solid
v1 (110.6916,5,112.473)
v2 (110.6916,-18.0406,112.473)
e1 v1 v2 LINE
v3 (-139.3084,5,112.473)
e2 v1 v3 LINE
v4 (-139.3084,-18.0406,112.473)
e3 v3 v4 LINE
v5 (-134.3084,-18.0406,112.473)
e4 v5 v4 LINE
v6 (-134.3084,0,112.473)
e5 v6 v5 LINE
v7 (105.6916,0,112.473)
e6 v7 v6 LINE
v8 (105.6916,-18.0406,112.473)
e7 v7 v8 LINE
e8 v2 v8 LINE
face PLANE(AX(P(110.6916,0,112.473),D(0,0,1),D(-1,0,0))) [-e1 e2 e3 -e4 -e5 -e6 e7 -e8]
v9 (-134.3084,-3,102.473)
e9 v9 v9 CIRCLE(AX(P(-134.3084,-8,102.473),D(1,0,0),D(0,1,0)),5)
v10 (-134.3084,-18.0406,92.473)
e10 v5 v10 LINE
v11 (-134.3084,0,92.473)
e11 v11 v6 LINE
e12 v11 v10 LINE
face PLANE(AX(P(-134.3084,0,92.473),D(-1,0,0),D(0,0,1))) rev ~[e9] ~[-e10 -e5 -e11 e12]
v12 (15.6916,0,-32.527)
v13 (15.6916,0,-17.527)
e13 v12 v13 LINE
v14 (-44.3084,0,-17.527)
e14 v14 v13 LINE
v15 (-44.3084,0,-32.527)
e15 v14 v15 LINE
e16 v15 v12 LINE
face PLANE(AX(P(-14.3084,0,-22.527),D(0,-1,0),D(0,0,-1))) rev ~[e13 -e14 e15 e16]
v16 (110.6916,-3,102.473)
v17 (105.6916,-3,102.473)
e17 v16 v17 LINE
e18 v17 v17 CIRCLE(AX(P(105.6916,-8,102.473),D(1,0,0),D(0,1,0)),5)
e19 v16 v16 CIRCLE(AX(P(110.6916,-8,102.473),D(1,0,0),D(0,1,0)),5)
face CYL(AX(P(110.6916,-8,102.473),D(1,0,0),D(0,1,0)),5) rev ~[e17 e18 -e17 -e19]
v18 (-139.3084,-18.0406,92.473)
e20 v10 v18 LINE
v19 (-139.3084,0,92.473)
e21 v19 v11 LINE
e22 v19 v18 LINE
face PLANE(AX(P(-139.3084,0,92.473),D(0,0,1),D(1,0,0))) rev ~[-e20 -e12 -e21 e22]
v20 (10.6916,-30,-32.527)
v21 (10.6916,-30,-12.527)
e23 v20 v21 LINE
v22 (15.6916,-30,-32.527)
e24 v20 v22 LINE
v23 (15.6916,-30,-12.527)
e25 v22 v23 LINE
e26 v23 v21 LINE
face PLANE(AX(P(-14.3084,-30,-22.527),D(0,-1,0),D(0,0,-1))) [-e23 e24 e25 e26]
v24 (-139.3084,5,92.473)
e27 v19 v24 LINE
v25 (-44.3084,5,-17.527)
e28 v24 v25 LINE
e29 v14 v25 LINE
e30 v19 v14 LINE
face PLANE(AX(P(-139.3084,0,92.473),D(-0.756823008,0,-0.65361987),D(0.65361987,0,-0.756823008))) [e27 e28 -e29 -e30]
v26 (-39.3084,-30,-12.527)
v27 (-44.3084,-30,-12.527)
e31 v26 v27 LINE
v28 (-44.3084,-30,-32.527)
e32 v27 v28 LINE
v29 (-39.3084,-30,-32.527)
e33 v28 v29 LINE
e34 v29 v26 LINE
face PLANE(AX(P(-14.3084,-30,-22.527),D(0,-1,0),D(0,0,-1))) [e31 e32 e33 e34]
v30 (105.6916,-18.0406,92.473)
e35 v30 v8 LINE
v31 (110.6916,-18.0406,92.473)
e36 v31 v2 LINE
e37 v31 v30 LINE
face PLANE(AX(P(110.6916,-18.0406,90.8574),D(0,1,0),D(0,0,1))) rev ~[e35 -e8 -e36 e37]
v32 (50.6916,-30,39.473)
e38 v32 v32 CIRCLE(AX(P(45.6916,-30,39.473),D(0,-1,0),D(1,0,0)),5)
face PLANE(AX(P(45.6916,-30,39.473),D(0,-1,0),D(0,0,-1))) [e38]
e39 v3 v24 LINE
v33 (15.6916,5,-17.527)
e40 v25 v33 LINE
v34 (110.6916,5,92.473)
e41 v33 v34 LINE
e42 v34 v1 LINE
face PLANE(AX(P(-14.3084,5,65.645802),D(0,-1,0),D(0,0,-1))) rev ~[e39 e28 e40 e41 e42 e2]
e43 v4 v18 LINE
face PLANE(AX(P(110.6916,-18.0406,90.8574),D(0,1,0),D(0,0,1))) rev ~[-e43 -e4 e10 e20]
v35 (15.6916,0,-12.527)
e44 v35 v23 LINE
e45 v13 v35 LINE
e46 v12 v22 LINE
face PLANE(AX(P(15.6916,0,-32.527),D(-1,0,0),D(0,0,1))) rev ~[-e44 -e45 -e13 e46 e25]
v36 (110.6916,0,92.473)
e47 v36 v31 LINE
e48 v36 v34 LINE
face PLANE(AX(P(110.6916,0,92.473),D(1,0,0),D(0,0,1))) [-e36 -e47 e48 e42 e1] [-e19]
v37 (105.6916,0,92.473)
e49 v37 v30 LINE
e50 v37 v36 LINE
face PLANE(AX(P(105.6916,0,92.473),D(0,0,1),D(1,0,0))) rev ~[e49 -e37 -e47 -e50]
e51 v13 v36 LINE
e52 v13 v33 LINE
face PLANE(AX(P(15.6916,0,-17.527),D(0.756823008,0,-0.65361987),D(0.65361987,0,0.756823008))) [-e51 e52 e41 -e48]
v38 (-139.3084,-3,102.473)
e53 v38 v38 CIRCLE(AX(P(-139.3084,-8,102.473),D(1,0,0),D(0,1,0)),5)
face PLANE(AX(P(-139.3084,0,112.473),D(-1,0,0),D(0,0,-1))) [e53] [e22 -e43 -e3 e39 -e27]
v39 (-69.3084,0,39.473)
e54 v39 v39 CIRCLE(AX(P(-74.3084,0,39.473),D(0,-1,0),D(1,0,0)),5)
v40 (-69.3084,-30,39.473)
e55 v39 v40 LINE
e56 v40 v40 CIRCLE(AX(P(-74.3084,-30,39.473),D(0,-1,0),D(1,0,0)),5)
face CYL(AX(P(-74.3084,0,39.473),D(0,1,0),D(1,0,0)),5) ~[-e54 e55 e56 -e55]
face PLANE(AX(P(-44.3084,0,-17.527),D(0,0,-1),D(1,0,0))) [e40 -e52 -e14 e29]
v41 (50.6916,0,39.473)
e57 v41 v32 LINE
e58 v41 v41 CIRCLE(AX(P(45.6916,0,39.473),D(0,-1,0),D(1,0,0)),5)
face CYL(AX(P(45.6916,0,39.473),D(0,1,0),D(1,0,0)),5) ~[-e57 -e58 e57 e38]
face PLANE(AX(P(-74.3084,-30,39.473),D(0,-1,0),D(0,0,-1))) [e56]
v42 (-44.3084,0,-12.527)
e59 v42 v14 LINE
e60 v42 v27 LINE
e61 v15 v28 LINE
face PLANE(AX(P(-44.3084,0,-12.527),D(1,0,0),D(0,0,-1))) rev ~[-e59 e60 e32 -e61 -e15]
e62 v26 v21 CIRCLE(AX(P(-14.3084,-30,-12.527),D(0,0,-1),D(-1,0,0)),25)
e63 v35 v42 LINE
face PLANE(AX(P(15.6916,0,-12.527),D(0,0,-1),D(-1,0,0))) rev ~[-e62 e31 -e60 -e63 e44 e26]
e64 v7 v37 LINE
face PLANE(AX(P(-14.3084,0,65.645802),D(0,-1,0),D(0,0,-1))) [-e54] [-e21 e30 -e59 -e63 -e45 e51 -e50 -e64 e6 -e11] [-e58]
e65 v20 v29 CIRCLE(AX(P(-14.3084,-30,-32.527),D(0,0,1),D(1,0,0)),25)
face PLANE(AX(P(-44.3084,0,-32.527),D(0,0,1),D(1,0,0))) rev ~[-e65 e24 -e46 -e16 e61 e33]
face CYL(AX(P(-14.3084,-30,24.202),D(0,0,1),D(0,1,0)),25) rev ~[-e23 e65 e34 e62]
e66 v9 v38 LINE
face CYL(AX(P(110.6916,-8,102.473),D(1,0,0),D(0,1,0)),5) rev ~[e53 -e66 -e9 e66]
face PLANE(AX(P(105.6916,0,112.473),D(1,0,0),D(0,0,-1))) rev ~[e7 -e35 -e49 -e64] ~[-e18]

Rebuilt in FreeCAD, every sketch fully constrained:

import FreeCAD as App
import Part
import Sketcher

V = App.Vector

doc = App.newDocument("Part")
body = doc.addObject("PartDesign::Body", "Body")

# Sketch on XZ plane
sketch1 = body.newObject("Sketcher::SketchObject", "Sketch")
sketch1.AttachmentSupport = (doc.getObject("XZ_Plane"), [""])
sketch1.MapMode = "FlatFace"
sketch1.addGeometry([
    Part.LineSegment(V(15.6916, -17.527, 0), V(110.6916, 92.473, 0)),  # 0
    Part.LineSegment(V(110.6916, 92.473, 0), V(110.6916, 112.473, 0)),  # 1
    Part.LineSegment(V(110.6916, 112.473, 0), V(-139.3084, 112.473, 0)),  # 2
    Part.LineSegment(V(-139.3084, 112.473, 0), V(-139.3084, 92.473, 0)),  # 3
    Part.LineSegment(V(-139.3084, 92.473, 0), V(-44.3084, -17.527, 0)),  # 4
    Part.LineSegment(V(-44.3084, -17.527, 0), V(15.6916, -17.527, 0)),  # 5
], False)
sketch1.addConstraint([
    Sketcher.Constraint("Coincident", 0, 2, 1, 1),
    Sketcher.Constraint("Coincident", 1, 2, 2, 1),
    Sketcher.Constraint("Coincident", 2, 2, 3, 1),
    Sketcher.Constraint("Coincident", 3, 2, 4, 1),
    Sketcher.Constraint("Coincident", 4, 2, 5, 1),
    Sketcher.Constraint("Coincident", 5, 2, 0, 1),
    Sketcher.Constraint("Vertical", 1),
    Sketcher.Constraint("Horizontal", 2),
    Sketcher.Constraint("Vertical", 3),
    Sketcher.Constraint("Horizontal", 5),
    Sketcher.Constraint("Horizontal", 0, 2, 3, 2),
    Sketcher.Constraint("Equal", 0, 4),
    Sketcher.Constraint("DistanceX", 2, 2, 2, 1, 250.0),
    Sketcher.Constraint("DistanceX", 5, 1, 5, 2, 60.0),
    Sketcher.Constraint("DistanceY", 1, 1, 1, 2, 20.0),
    Sketcher.Constraint("DistanceY", 4, 2, 3, 2, 110.0),
    Sketcher.Constraint("DistanceX", -1, 1, 0, 2, 110.6916),
    Sketcher.Constraint("DistanceY", -1, 1, 0, 2, 92.473),
])
pad1 = body.newObject("PartDesign::Pad", "Pad")
pad1.Profile = sketch1
pad1.Length = 5
pad1.Reversed = True

# Sketch on XZ plane
sketch2 = body.newObject("Sketcher::SketchObject", "Sketch001")
sketch2.AttachmentSupport = (doc.getObject("XZ_Plane"), [""])
sketch2.MapMode = "FlatFace"
sketch2.addGeometry([
    Part.LineSegment(V(105.6916, 112.473, 0), V(105.6916, 92.473, 0)),  # 0
    Part.LineSegment(V(105.6916, 92.473, 0), V(110.6916, 92.473, 0)),  # 1
    Part.LineSegment(V(110.6916, 92.473, 0), V(110.6916, 112.473, 0)),  # 2
    Part.LineSegment(V(110.6916, 112.473, 0), V(105.6916, 112.473, 0)),  # 3
    Part.LineSegment(V(-44.3084, -12.527, 0), V(-44.3084, -32.527, 0)),  # 4
    Part.LineSegment(V(-44.3084, -32.527, 0), V(15.6916, -32.527, 0)),  # 5
    Part.LineSegment(V(15.6916, -32.527, 0), V(15.6916, -12.527, 0)),  # 6
    Part.LineSegment(V(15.6916, -12.527, 0), V(-44.3084, -12.527, 0)),  # 7
    Part.Circle(V(-74.3084, 39.473, 0), V(0, 0, 1), 5),  # 8
    Part.Circle(V(45.6916, 39.473, 0), V(0, 0, 1), 5),  # 9
    Part.LineSegment(V(-139.3084, 112.473, 0), V(-139.3084, 92.473, 0)),  # 10
    Part.LineSegment(V(-139.3084, 92.473, 0), V(-134.3084, 92.473, 0)),  # 11
    Part.LineSegment(V(-134.3084, 92.473, 0), V(-134.3084, 112.473, 0)),  # 12
    Part.LineSegment(V(-134.3084, 112.473, 0), V(-139.3084, 112.473, 0)),  # 13
], False)
sketch2.addConstraint([
    Sketcher.Constraint("Coincident", 0, 2, 1, 1),
    Sketcher.Constraint("Coincident", 1, 2, 2, 1),
    Sketcher.Constraint("Coincident", 2, 2, 3, 1),
    Sketcher.Constraint("Coincident", 3, 2, 0, 1),
    Sketcher.Constraint("Coincident", 4, 2, 5, 1),
    Sketcher.Constraint("Coincident", 5, 2, 6, 1),
    Sketcher.Constraint("Coincident", 6, 2, 7, 1),
    Sketcher.Constraint("Coincident", 7, 2, 4, 1),
    Sketcher.Constraint("Coincident", 10, 2, 11, 1),
    Sketcher.Constraint("Coincident", 11, 2, 12, 1),
    Sketcher.Constraint("Coincident", 12, 2, 13, 1),
    Sketcher.Constraint("Coincident", 13, 2, 10, 1),
    Sketcher.Constraint("Vertical", 0),
    Sketcher.Constraint("Horizontal", 1),
    Sketcher.Constraint("Vertical", 2),
    Sketcher.Constraint("Horizontal", 3),
    Sketcher.Constraint("Vertical", 4),
    Sketcher.Constraint("Horizontal", 5),
    Sketcher.Constraint("Vertical", 6),
    Sketcher.Constraint("Horizontal", 7),
    Sketcher.Constraint("Vertical", 10),
    Sketcher.Constraint("Horizontal", 11),
    Sketcher.Constraint("Vertical", 12),
    Sketcher.Constraint("Horizontal", 13),
    Sketcher.Constraint("Equal", 8, 9),
    Sketcher.Constraint("Horizontal", 8, 3, 9, 3),
    Sketcher.Constraint("Horizontal", 1, 2, 10, 2),
    Sketcher.Constraint("Horizontal", 3, 2, 12, 2),
    Sketcher.Constraint("Equal", 3, 11),
    Sketcher.Constraint("Equal", 2, 4),
    Sketcher.Constraint("Diameter", 8, 10.0),
    Sketcher.Constraint("DistanceX", 4, 2, 0, 2, 150.0),
    Sketcher.Constraint("DistanceY", 4, 2, 3, 2, 145.0),
    Sketcher.Constraint("DistanceX", 5, 2, 1, 2, 95.0),
    Sketcher.Constraint("DistanceX", 10, 2, 7, 2, 95.0),
    Sketcher.Constraint("DistanceX", 1, 1, 1, 2, 5.0),
    Sketcher.Constraint("DistanceY", 0, 2, 0, 1, 20.0),
    Sketcher.Constraint("DistanceX", 8, 3, 9, 3, 120.0),
    Sketcher.Constraint("DistanceX", 9, 3, 0, 2, 60.0),
    Sketcher.Constraint("DistanceY", 9, 3, 0, 2, 53.0),
    Sketcher.Constraint("DistanceY", -1, 1, 8, 3, 39.473),
    Sketcher.Constraint("DistanceX", 8, 3, -1, 1, 74.3084),
])
pad2 = body.newObject("PartDesign::Pad", "Pad001")
pad2.Profile = sketch2
pad2.Length = 30

# Sketch on XY plane
sketch3 = body.newObject("Sketcher::SketchObject", "Sketch002")
sketch3.AttachmentSupport = (doc.getObject("XY_Plane"), [""])
sketch3.MapMode = "FlatFace"
sketch3.AttachmentOffset = App.Placement(V(0, 0, 24.202), App.Rotation())
sketch3.addGeometry(Part.Circle(V(-14.3084, -30, 0), V(0, 0, 1), 25), False)
sketch3.addConstraint([
    Sketcher.Constraint("Diameter", 0, 50.0),
    Sketcher.Constraint("DistanceY", 0, 3, -1, 1, 30.0),
    Sketcher.Constraint("DistanceX", 0, 3, -1, 1, 14.3084),
])
pocket1 = body.newObject("PartDesign::Pocket", "Pocket")
pocket1.Profile = sketch3
pocket1.Type = "ThroughAll"

# Sketch on YZ plane
sketch4 = body.newObject("Sketcher::SketchObject", "Sketch003")
sketch4.AttachmentSupport = (doc.getObject("YZ_Plane"), [""])
sketch4.MapMode = "FlatFace"
sketch4.AttachmentOffset = App.Placement(V(0, 0, 110.6916), App.Rotation())
sketch4.addGeometry([
    Part.LineSegment(V(-32.3844, 113.6386, 0), V(-32.3844, 90.8574, 0)),  # 0
    Part.LineSegment(V(-32.3844, 90.8574, 0), V(-18.0406, 90.8574, 0)),  # 1
    Part.LineSegment(V(-18.0406, 90.8574, 0), V(-18.0406, 113.6386, 0)),  # 2
    Part.LineSegment(V(-18.0406, 113.6386, 0), V(-32.3844, 113.6386, 0)),  # 3
    Part.Circle(V(-8, 102.473, 0), V(0, 0, 1), 5),  # 4
], False)
sketch4.addConstraint([
    Sketcher.Constraint("Coincident", 0, 2, 1, 1),
    Sketcher.Constraint("Coincident", 1, 2, 2, 1),
    Sketcher.Constraint("Coincident", 2, 2, 3, 1),
    Sketcher.Constraint("Coincident", 3, 2, 0, 1),
    Sketcher.Constraint("Vertical", 0),
    Sketcher.Constraint("Horizontal", 1),
    Sketcher.Constraint("Vertical", 2),
    Sketcher.Constraint("Horizontal", 3),
    Sketcher.Constraint("Diameter", 4, 10.0),
    Sketcher.Constraint("DistanceX", 4, 3, -1, 1, 8.0),
    Sketcher.Constraint("DistanceX", 1, 1, 1, 2, 14.3438),
    Sketcher.Constraint("DistanceY", 0, 2, 0, 1, 22.7812),
    Sketcher.Constraint("DistanceY", -1, 1, 4, 3, 102.473),
    Sketcher.Constraint("DistanceX", 0, 2, -1, 1, 32.3844),
    Sketcher.Constraint("DistanceY", -1, 1, 0, 2, 90.8574),
])
pocket2 = body.newObject("PartDesign::Pocket", "Pocket001")
pocket2.Profile = sketch4
pocket2.Length = 287.5314

doc.recompute()
